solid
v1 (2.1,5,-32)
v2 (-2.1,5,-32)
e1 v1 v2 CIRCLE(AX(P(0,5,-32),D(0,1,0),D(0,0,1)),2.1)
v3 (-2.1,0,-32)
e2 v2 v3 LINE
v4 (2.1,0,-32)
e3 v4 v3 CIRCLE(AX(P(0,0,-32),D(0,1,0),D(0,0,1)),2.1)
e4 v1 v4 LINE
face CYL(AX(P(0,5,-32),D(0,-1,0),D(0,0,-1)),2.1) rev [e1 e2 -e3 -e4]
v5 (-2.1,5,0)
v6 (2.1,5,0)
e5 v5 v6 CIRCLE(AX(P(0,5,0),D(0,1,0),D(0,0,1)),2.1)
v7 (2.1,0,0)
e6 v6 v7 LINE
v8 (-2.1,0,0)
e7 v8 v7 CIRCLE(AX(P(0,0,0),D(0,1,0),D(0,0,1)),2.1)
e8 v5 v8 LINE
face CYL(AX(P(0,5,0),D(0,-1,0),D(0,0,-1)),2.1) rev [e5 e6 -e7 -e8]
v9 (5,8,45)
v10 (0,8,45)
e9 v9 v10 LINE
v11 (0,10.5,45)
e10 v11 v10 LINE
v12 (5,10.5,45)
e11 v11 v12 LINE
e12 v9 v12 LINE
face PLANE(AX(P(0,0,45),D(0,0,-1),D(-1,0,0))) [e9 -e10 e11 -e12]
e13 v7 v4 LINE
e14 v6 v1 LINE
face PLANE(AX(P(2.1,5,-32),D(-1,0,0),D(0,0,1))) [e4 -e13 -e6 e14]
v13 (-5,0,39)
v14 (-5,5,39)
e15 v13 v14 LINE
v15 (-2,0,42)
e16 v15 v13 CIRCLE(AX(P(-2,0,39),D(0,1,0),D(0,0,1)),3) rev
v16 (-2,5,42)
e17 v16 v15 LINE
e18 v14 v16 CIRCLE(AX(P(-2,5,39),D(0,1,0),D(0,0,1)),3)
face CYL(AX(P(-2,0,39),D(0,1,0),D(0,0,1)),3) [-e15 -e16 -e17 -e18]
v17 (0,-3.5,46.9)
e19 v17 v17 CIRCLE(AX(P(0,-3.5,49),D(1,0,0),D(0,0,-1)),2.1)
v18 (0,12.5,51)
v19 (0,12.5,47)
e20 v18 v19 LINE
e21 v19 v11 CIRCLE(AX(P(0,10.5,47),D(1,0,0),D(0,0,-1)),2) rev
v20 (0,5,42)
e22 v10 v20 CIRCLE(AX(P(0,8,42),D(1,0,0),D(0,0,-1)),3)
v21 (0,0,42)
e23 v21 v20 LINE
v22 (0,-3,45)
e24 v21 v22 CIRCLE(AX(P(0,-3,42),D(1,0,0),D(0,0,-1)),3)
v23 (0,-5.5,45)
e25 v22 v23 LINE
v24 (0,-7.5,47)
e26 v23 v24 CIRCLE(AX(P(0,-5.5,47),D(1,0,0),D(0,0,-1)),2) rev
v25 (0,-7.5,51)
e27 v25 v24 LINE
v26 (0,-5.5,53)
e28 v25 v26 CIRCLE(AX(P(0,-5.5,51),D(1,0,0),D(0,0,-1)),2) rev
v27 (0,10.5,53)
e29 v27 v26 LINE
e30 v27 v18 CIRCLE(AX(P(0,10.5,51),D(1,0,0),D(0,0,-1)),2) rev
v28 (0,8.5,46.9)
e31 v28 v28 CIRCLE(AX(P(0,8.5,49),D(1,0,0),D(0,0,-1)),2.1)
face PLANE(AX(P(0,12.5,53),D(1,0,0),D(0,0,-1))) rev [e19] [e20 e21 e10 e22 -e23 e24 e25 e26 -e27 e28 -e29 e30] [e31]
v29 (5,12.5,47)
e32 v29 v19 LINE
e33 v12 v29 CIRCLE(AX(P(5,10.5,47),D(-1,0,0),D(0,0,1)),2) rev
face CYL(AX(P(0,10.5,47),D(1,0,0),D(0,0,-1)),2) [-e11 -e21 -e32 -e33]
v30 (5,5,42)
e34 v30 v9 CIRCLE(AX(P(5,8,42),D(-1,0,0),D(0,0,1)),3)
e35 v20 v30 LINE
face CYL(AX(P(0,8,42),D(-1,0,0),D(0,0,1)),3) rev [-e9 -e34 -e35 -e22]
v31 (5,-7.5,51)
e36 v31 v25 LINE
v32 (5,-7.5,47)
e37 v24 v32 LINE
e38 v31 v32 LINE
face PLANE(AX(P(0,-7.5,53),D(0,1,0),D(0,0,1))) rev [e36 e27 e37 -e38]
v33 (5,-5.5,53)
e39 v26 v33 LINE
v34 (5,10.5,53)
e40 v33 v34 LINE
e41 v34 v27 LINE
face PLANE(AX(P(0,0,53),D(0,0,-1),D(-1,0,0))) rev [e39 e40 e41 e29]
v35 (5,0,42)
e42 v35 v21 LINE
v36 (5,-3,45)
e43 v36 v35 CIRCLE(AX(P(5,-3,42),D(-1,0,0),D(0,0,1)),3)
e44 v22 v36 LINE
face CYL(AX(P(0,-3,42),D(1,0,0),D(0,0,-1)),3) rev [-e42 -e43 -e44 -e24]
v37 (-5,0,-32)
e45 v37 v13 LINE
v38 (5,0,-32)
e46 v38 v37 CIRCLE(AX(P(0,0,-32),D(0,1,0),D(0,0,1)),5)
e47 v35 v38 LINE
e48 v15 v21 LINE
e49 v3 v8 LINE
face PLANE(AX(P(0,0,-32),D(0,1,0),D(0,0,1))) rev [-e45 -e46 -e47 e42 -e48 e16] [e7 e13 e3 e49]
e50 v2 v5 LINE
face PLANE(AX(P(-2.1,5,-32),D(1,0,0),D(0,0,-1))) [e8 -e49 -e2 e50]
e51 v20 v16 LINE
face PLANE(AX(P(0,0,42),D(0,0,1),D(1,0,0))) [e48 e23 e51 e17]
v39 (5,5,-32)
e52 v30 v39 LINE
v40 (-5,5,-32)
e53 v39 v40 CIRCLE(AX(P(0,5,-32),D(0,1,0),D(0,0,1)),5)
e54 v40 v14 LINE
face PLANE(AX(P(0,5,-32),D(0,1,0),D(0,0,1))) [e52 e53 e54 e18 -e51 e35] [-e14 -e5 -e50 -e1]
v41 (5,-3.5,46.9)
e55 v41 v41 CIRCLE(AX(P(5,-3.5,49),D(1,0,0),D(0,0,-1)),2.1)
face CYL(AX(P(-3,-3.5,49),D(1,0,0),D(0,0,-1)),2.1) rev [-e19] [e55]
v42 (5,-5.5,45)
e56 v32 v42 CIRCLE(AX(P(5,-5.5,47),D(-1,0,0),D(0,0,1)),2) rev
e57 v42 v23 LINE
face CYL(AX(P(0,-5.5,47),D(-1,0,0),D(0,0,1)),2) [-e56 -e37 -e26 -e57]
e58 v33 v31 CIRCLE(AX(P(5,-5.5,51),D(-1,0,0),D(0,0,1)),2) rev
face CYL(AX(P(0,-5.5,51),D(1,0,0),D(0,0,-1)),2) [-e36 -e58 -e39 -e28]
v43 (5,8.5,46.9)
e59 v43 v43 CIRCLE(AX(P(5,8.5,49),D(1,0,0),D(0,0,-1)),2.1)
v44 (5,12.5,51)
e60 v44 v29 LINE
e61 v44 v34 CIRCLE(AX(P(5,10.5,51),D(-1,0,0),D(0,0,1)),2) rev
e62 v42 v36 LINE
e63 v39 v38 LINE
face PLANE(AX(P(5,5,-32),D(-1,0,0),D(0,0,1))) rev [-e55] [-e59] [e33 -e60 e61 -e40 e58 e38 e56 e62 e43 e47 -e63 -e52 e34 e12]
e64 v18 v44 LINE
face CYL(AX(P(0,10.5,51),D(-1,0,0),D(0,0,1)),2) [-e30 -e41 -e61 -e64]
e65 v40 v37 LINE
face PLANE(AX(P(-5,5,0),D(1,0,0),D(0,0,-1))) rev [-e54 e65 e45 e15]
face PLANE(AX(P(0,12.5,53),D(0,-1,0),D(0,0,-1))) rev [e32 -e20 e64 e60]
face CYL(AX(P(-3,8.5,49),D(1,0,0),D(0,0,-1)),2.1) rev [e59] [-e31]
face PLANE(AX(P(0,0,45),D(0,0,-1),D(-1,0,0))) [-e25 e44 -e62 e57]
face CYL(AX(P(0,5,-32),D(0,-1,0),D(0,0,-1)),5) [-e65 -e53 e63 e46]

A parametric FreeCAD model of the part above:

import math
import FreeCAD as App
import Part
import Sketcher
Q = App.Units.Quantity


def edges_at(feature, points):
    """Names of the edges that pass closest to the given points."""
    edges = feature.Shape.Edges
    near = lambda p: min(range(len(edges)), key=lambda i: edges[i].distToShape(Part.Vertex(*p))[0])
    return sorted({f"Edge{near(p) + 1}" for p in points})

doc = App.newDocument("Part")
body = doc.addObject("PartDesign::Body", "Body")

# Sketch on XZ plane
sketch1 = body.newObject("Sketcher::SketchObject", "Sketch")
sketch1.AttachmentSupport = (doc.getObject("XZ_Plane"), [""])
sketch1.MapMode = "FlatFace"
sketch1.addGeometry([
    Part.LineSegment(App.Vector(5, 45, 0), App.Vector(5, -32, 0)),  # 0
    Part.ArcOfCircle(Part.Circle(App.Vector(0, -32, 0), App.Vector(0, 0, 1), 5), math.radians(180), math.radians(360)),  # 1
    Part.LineSegment(App.Vector(-5, -32, 0), App.Vector(-5, 45, 0)),  # 2
    Part.LineSegment(App.Vector(-5, 45, 0), App.Vector(5, 45, 0)),  # 3
    Part.LineSegment(App.Vector(2.1, -32, 0), App.Vector(2.1, 0, 0)),  # 4
    Part.ArcOfCircle(Part.Circle(App.Vector(0, 0, 0), App.Vector(0, 0, 1), 2.1), math.radians(0), math.radians(180)),  # 5
    Part.LineSegment(App.Vector(-2.1, 0, 0), App.Vector(-2.1, -32, 0)),  # 6
    Part.ArcOfCircle(Part.Circle(App.Vector(0, -32, 0), App.Vector(0, 0, 1), 2.1), math.radians(180), math.radians(360)),  # 7
], False)
sketch1.addConstraint([
    Sketcher.Constraint("Tangent", 0, 2, 1, 2),
    Sketcher.Constraint("Tangent", 1, 1, 2, 1),
    Sketcher.Constraint("Coincident", 2, 2, 3, 1),
    Sketcher.Constraint("Coincident", 3, 2, 0, 1),
    Sketcher.Constraint("Tangent", 4, 2, 5, 1),
    Sketcher.Constraint("Tangent", 5, 2, 6, 1),
    Sketcher.Constraint("Tangent", 6, 2, 7, 1),
    Sketcher.Constraint("Tangent", 7, 2, 4, 1),
    Sketcher.Constraint("Vertical", 0),
    Sketcher.Constraint("Vertical", 2),
    Sketcher.Constraint("Horizontal", 3),
    Sketcher.Constraint("Vertical", 4),
    Sketcher.Constraint("Vertical", 6),
    Sketcher.Constraint("Coincident", 5, 3, -1, 1),
    Sketcher.Constraint("Coincident", 7, 3, 1, 3),
    Sketcher.Constraint("Radius", 1, Q("5 mm")),
    Sketcher.Constraint("Radius", 5, Q("2.1 mm")),
    Sketcher.Constraint("DistanceY", 0, 2, 0, 1, Q("77 mm")),
    Sketcher.Constraint("DistanceY", 4, 1, 4, 2, Q("32 mm")),
])
pad1 = body.newObject("PartDesign::Pad", "Pad")
pad1.Profile = sketch1
pad1.Length = 5
pad1.Reversed = True

# Sketch on XY plane
sketch2 = body.newObject("Sketcher::SketchObject", "Sketch001")
sketch2.AttachmentSupport = (doc.getObject("XY_Plane"), [""])
sketch2.MapMode = "FlatFace"
sketch2.AttachmentOffset = App.Placement(App.Vector(0, 0, 45), App.Rotation())
sketch2.addGeometry([
    Part.LineSegment(App.Vector(0, 12, 0), App.Vector(0, -8, 0)),
    Part.LineSegment(App.Vector(0, -8, 0), App.Vector(5, -8, 0)),
    Part.LineSegment(App.Vector(5, -8, 0), App.Vector(5, 12, 0)),
    Part.LineSegment(App.Vector(5, 12, 0), App.Vector(0, 12, 0)),
], False)
sketch2.addConstraint([
    Sketcher.Constraint("Coincident", 0, 2, 1, 1),
    Sketcher.Constraint("Coincident", 1, 2, 2, 1),
    Sketcher.Constraint("Coincident", 2, 2, 3, 1),
    Sketcher.Constraint("Coincident", 3, 2, 0, 1),
    Sketcher.Constraint("Vertical", 0),
    Sketcher.Constraint("Horizontal", 1),
    Sketcher.Constraint("Vertical", 2),
    Sketcher.Constraint("Horizontal", 3),
    Sketcher.Constraint("PointOnObject", 0, 2, -2),
    Sketcher.Constraint("DistanceX", 1, 1, 1, 2, Q("5 mm")),
    Sketcher.Constraint("DistanceY", 0, 2, 0, 1, Q("20 mm")),
    Sketcher.Constraint("DistanceY", 0, 2, -1, 1, Q("7.5 mm")),
])
pad2 = body.newObject("PartDesign::Pad", "Pad001")
pad2.Profile = sketch2
pad2.Length = 8

# Sketch on YZ plane
sketch3 = body.newObject("Sketcher::SketchObject", "Sketch002")
sketch3.AttachmentSupport = (doc.getObject("YZ_Plane"), [""])
sketch3.MapMode = "FlatFace"
sketch3.AttachmentOffset = App.Placement(App.Vector(0, 0, 5), App.Rotation())
sketch3.addGeometry([
    Part.Circle(App.Vector(8.5, 49, 0), App.Vector(0, 0, 1), 2.1),
    Part.Circle(App.Vector(-3.5, 49, 0), App.Vector(0, 0, 1), 2.1),
], False)
sketch3.addConstraint([
    Sketcher.Constraint("Equal", 0, 1),
    Sketcher.Constraint("Horizontal", 0, 3, 1, 3),
    Sketcher.Constraint("Diameter", 0, Q("4.2 mm")),
    Sketcher.Constraint("DistanceY", -1, 1, 0, 3, Q("49 mm")),
    Sketcher.Constraint("DistanceX", 1, 3, 0, 3, Q("12 mm")),
    Sketcher.Constraint("DistanceX", -1, 1, 0, 3, Q("8.5 mm")),
])
pocket1 = body.newObject("PartDesign::Pocket", "Pocket")
pocket1.Profile = sketch3
pocket1.Length = 8
doc.recompute()

fillet = body.newObject("PartDesign::Fillet", "Fillet")
fillet.Base = (pocket1, edges_at(pocket1, [
    (2.5, 12.5, 45),
    (2.5, -7.5, 45),
    (2.5, 12.5, 53),
    (2.5, -7.5, 53),
]))
fillet.Radius = 2

# Sketch on XY plane
sketch4 = body.newObject("Sketcher::SketchObject", "Sketch003")
sketch4.AttachmentSupport = (doc.getObject("XY_Plane"), [""])
sketch4.MapMode = "FlatFace"
sketch4.AttachmentOffset = App.Placement(App.Vector(0, 0, 45), App.Rotation())
sketch4.addGeometry([
    Part.LineSegment(App.Vector(-5, 5, 0), App.Vector(-5, 0, 0)),
    Part.LineSegment(App.Vector(-5, 0, 0), App.Vector(0, 0, 0)),
    Part.LineSegment(App.Vector(0, 0, 0), App.Vector(0, 5, 0)),
    Part.LineSegment(App.Vector(0, 5, 0), App.Vector(-5, 5, 0)),
], False)
sketch4.addConstraint([
    Sketcher.Constraint("Coincident", 0, 2, 1, 1),
    Sketcher.Constraint("Coincident", 1, 2, 2, 1),
    Sketcher.Constraint("Coincident", 2, 2, 3, 1),
    Sketcher.Constraint("Coincident", 3, 2, 0, 1),
    Sketcher.Constraint("Vertical", 0),
    Sketcher.Constraint("Horizontal", 1),
    Sketcher.Constraint("Vertical", 2),
    Sketcher.Constraint("Horizontal", 3),
    Sketcher.Constraint("Coincident", 1, 2, -1, 1),
    Sketcher.Constraint("Equal", 3, 0),
    Sketcher.Constraint("DistanceX", 1, 1, 1, 2, Q("5 mm")),
])
pocket2 = body.newObject("PartDesign::Pocket", "Pocket001")
pocket2.Profile = sketch4
pocket2.Length = 3
doc.recompute()

fillet2 = body.newObject("PartDesign::Fillet", "Fillet001")
fillet2.Base = (pocket2, edges_at(pocket2, [(2.5, 0, 45), (-5, 2.5, 42), (2.5, 5, 45)]))
fillet2.Radius = 3

doc.recompute()
